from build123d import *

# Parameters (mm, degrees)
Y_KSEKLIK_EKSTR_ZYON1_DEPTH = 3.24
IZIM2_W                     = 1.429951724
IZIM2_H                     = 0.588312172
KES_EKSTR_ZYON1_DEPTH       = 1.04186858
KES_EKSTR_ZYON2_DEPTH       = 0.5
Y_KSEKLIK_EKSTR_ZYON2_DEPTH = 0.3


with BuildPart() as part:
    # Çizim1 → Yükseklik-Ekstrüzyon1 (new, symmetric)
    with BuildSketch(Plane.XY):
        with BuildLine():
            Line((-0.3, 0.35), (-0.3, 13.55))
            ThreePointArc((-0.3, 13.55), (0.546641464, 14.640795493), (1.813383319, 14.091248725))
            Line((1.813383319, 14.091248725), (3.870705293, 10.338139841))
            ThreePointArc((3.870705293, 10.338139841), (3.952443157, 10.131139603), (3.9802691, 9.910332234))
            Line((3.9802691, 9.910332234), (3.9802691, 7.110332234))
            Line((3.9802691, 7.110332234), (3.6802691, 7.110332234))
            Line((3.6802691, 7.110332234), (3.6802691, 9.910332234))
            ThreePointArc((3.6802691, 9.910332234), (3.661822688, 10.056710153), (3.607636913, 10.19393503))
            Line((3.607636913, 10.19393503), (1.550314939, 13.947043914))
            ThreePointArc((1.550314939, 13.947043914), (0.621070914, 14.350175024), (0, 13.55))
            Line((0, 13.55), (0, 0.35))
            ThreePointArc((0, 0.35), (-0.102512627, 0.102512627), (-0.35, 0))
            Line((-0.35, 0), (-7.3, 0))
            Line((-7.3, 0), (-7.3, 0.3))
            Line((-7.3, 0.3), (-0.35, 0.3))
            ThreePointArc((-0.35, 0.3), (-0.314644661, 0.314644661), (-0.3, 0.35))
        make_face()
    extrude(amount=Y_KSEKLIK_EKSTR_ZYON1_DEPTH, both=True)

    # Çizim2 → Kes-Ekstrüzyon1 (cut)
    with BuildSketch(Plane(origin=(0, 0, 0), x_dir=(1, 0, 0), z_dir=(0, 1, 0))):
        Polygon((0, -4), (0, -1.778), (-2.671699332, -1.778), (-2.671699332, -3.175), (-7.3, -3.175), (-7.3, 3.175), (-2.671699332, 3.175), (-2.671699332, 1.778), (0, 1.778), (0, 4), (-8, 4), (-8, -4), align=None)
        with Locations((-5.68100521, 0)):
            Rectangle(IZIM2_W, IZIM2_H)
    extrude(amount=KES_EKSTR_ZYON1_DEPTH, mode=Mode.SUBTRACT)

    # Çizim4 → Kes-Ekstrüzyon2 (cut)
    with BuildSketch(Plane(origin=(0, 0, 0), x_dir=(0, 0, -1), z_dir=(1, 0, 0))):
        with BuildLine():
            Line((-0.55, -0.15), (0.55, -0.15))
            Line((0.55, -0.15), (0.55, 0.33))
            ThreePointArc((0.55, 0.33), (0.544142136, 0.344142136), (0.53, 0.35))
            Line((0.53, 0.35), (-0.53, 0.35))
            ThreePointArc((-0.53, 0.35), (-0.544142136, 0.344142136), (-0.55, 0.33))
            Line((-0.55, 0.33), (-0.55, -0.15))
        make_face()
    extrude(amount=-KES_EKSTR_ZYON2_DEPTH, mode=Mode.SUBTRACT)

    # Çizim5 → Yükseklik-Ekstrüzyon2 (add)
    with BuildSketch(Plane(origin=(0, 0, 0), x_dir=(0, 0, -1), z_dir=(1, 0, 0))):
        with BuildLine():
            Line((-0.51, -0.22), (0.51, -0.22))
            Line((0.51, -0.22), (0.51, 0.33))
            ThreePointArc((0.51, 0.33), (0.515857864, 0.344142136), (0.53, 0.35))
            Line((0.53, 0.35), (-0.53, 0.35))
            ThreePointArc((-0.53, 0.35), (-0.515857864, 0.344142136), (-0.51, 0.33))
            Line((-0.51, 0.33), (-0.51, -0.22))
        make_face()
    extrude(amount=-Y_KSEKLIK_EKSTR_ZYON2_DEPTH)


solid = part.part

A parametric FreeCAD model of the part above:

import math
import FreeCAD as App
import Part
import Sketcher
Q = App.Units.Quantity

doc = App.newDocument("Part")
body = doc.addObject("PartDesign::Body", "Body")

# Sketch on XY plane
sketch1 = body.newObject("Sketcher::SketchObject", "Sketch")
sketch1.AttachmentSupport = (doc.getObject("XY_Plane"), [""])
sketch1.MapMode = "FlatFace"
sketch1.addGeometry(Part.LineSegment(App.Vector(-0.3, 13.55, 0), App.Vector(-0.3, 0.35, 0)), False)
sketch1.addGeometry(Part.ArcOfCircle(Part.Circle(App.Vector(-0.35, 0.35, 0), App.Vector(0, 0, 1), 0.05), math.radians(-90), math.radians(0)), False)
sketch1.addGeometry(Part.LineSegment(App.Vector(-0.35, 0.3, 0), App.Vector(-7.3, 0.3, 0)), False)
sketch1.addGeometry(Part.LineSegment(App.Vector(-7.3, 0.3, 0), App.Vector(-7.3, 0, 0)), False)
sketch1.addGeometry(Part.LineSegment(App.Vector(-7.3, 0, 0), App.Vector(-0.35, 0, 0)), False)
sketch1.addGeometry(Part.ArcOfCircle(Part.Circle(App.Vector(-0.35, 0.35, 0), App.Vector(0, 0, 1), 0.35), math.radians(-90), math.radians(0)), False)
sketch1.addGeometry(Part.LineSegment(App.Vector(0, 0.35, 0), App.Vector(0, 13.55, 0)), False)
sketch1.addGeometry(Part.ArcOfCircle(Part.Circle(App.Vector(0.83, 13.55, 0), App.Vector(0, 0, 1), 0.83), math.radians(29), math.radians(180)), False)
sketch1.addGeometry(Part.LineSegment(App.Vector(1.55, 13.95, 0), App.Vector(3.61, 10.19, 0)), False)
sketch1.addGeometry(Part.ArcOfCircle(Part.Circle(App.Vector(3.09, 9.91, 0), App.Vector(0, 0, 1), 0.59), math.radians(0), math.radians(29)), False)
sketch1.addGeometry(Part.LineSegment(App.Vector(3.68, 9.91, 0), App.Vector(3.68, 7.11, 0)), False)
sketch1.addGeometry(Part.LineSegment(App.Vector(3.68, 7.11, 0), App.Vector(3.98, 7.11, 0)), False)
sketch1.addGeometry(Part.LineSegment(App.Vector(3.98, 7.11, 0), App.Vector(3.98, 9.91, 0)), False)
sketch1.addGeometry(Part.ArcOfCircle(Part.Circle(App.Vector(3.09, 9.91, 0), App.Vector(0, 0, 1), 0.89), math.radians(0), math.radians(29)), False)
sketch1.addGeometry(Part.LineSegment(App.Vector(3.87, 10.34, 0), App.Vector(1.81, 14.09, 0)), False)
sketch1.addGeometry(Part.ArcOfCircle(Part.Circle(App.Vector(0.83, 13.55, 0), App.Vector(0, 0, 1), 1.13), math.radians(29), math.radians(180)), False)
sketch1.addConstraint(Sketcher.Constraint("Tangent", 0, 2, 1, 2))
sketch1.addConstraint(Sketcher.Constraint("Tangent", 1, 1, 2, 1))
sketch1.addConstraint(Sketcher.Constraint("Coincident", 2, 2, 3, 1))
sketch1.addConstraint(Sketcher.Constraint("Coincident", 3, 2, 4, 1))
sketch1.addConstraint(Sketcher.Constraint("Tangent", 4, 2, 5, 1))
sketch1.addConstraint(Sketcher.Constraint("Tangent", 5, 2, 6, 1))
sketch1.addConstraint(Sketcher.Constraint("Tangent", 6, 2, 7, 2))
sketch1.addConstraint(Sketcher.Constraint("Tangent", 7, 1, 8, 1))
sketch1.addConstraint(Sketcher.Constraint("Tangent", 8, 2, 9, 2))
sketch1.addConstraint(Sketcher.Constraint("Tangent", 9, 1, 10, 1))
sketch1.addConstraint(Sketcher.Constraint("Coincident", 10, 2, 11, 1))
sketch1.addConstraint(Sketcher.Constraint("Coincident", 11, 2, 12, 1))
sketch1.addConstraint(Sketcher.Constraint("Tangent", 12, 2, 13, 1))
sketch1.addConstraint(Sketcher.Constraint("Tangent", 13, 2, 14, 1))
sketch1.addConstraint(Sketcher.Constraint("Tangent", 14, 2, 15, 1))
sketch1.addConstraint(Sketcher.Constraint("Tangent", 15, 2, 0, 1))
sketch1.addConstraint(Sketcher.Constraint("Vertical", 0))
sketch1.addConstraint(Sketcher.Constraint("Horizontal", 2))
sketch1.addConstraint(Sketcher.Constraint("Vertical", 3))
sketch1.addConstraint(Sketcher.Constraint("Horizontal", 4))
sketch1.addConstraint(Sketcher.Constraint("Vertical", 6))
sketch1.addConstraint(Sketcher.Constraint("Vertical", 10))
sketch1.addConstraint(Sketcher.Constraint("Horizontal", 11))
sketch1.addConstraint(Sketcher.Constraint("Vertical", 12))
sketch1.addConstraint(Sketcher.Constraint("Coincident", 5, 3, 1, 3))
sketch1.addConstraint(Sketcher.Constraint("Coincident", 13, 3, 9, 3))
sketch1.addConstraint(Sketcher.Constraint("Coincident", 15, 3, 7, 3))
sketch1.addConstraint(Sketcher.Constraint("PointOnObject", 3, 2, -1))
sketch1.addConstraint(Sketcher.Constraint("PointOnObject", 5, 2, -2))
sketch1.addConstraint(Sketcher.Constraint("Parallel", 8, 14))
sketch1.addConstraint(Sketcher.Constraint("Radius", 1, Q("0.05 mm")))
sketch1.addConstraint(Sketcher.Constraint("Radius", 5, Q("0.35 mm")))
sketch1.addConstraint(Sketcher.Constraint("Radius", 9, Q("0.59 mm")))
sketch1.addConstraint(Sketcher.Constraint("DistanceY", 0, 2, 0, 1, Q("13.2 mm")))
sketch1.addConstraint(Sketcher.Constraint("DistanceY", 10, 2, 10, 1, Q("2.8 mm")))
sketch1.addConstraint(Sketcher.Constraint("Radius", 7, Q("0.826 mm")))
sketch1.addConstraint(Sketcher.Constraint("DistanceX", 2, 2, 0, 2, Q("7 mm")))
sketch1.addConstraint(Sketcher.Constraint("Angle", 8, Q("-61.27 deg")))
sketch1.addConstraint(Sketcher.Constraint("Distance", 8, Q("4.28 mm")))
pad1 = body.newObject("PartDesign::Pad", "Pad")
pad1.Profile = sketch1
pad1.Length = 6.48
pad1.Midplane = True

# Sketch on XZ plane
sketch2 = body.newObject("Sketcher::SketchObject", "Sketch001")
sketch2.AttachmentSupport = (doc.getObject("XZ_Plane"), [""])
sketch2.MapMode = "FlatFace"
sketch2.addGeometry(Part.LineSegment(App.Vector(0, 4, 0), App.Vector(0, 1.8, 0)), False)
sketch2.addGeometry(Part.LineSegment(App.Vector(0, 1.8, 0), App.Vector(-2.7, 1.8, 0)), False)
sketch2.addGeometry(Part.LineSegment(App.Vector(-2.7, 1.8, 0), App.Vector(-2.7, 3.2, 0)), False)
sketch2.addGeometry(Part.LineSegment(App.Vector(-2.7, 3.2, 0), App.Vector(-7.3, 3.2, 0)), False)
sketch2.addGeometry(Part.LineSegment(App.Vector(-7.3, 3.2, 0), App.Vector(-7.3, -3.2, 0)), False)
sketch2.addGeometry(Part.LineSegment(App.Vector(-7.3, -3.2, 0), App.Vector(-2.7, -3.2, 0)), False)
sketch2.addGeometry(Part.LineSegment(App.Vector(-2.7, -3.2, 0), App.Vector(-2.7, -1.8, 0)), False)
sketch2.addGeometry(Part.LineSegment(App.Vector(-2.7, -1.8, 0), App.Vector(0, -1.8, 0)), False)
sketch2.addGeometry(Part.LineSegment(App.Vector(0, -1.8, 0), App.Vector(0, -4, 0)), False)
sketch2.addGeometry(Part.LineSegment(App.Vector(0, -4, 0), App.Vector(-8, -4, 0)), False)
sketch2.addGeometry(Part.LineSegment(App.Vector(-8, -4, 0), App.Vector(-8, 4, 0)), False)
sketch2.addGeometry(Part.LineSegment(App.Vector(-8, 4, 0), App.Vector(0, 4, 0)), False)
sketch2.addGeometry(Part.LineSegment(App.Vector(-6.4, -0.3, 0), App.Vector(-6.4, 0.3, 0)), False)
sketch2.addGeometry(Part.LineSegment(App.Vector(-6.4, 0.3, 0), App.Vector(-5, 0.3, 0)), False)
sketch2.addGeometry(Part.LineSegment(App.Vector(-5, 0.3, 0), App.Vector(-5, -0.3, 0)), False)
sketch2.addGeometry(Part.LineSegment(App.Vector(-5, -0.3, 0), App.Vector(-6.4, -0.3, 0)), False)
sketch2.addConstraint(Sketcher.Constraint("Coincident", 0, 2, 1, 1))
sketch2.addConstraint(Sketcher.Constraint("Coincident", 1, 2, 2, 1))
sketch2.addConstraint(Sketcher.Constraint("Coincident", 2, 2, 3, 1))
sketch2.addConstraint(Sketcher.Constraint("Coincident", 3, 2, 4, 1))
sketch2.addConstraint(Sketcher.Constraint("Coincident", 4, 2, 5, 1))
sketch2.addConstraint(Sketcher.Constraint("Coincident", 5, 2, 6, 1))
sketch2.addConstraint(Sketcher.Constraint("Coincident", 6, 2, 7, 1))
sketch2.addConstraint(Sketcher.Constraint("Coincident", 7, 2, 8, 1))
sketch2.addConstraint(Sketcher.Constraint("Coincident", 8, 2, 9, 1))
sketch2.addConstraint(Sketcher.Constraint("Coincident", 9, 2, 10, 1))
sketch2.addConstraint(Sketcher.Constraint("Coincident", 10, 2, 11, 1))
sketch2.addConstraint(Sketcher.Constraint("Coincident", 11, 2, 0, 1))
sketch2.addConstraint(Sketcher.Constraint("Coincident", 12, 2, 13, 1))
sketch2.addConstraint(Sketcher.Constraint("Coincident", 13, 2, 14, 1))
sketch2.addConstraint(Sketcher.Constraint("Coincident", 14, 2, 15, 1))
sketch2.addConstraint(Sketcher.Constraint("Coincident", 15, 2, 12, 1))
sketch2.addConstraint(Sketcher.Constraint("Vertical", 0))
sketch2.addConstraint(Sketcher.Constraint("Horizontal", 1))
sketch2.addConstraint(Sketcher.Constraint("Vertical", 2))
sketch2.addConstraint(Sketcher.Constraint("Horizontal", 3))
sketch2.addConstraint(Sketcher.Constraint("Vertical", 4))
sketch2.addConstraint(Sketcher.Constraint("Horizontal", 5))
sketch2.addConstraint(Sketcher.Constraint("Vertical", 6))
sketch2.addConstraint(Sketcher.Constraint("Horizontal", 7))
sketch2.addConstraint(Sketcher.Constraint("Vertical", 8))
sketch2.addConstraint(Sketcher.Constraint("Horizontal", 9))
sketch2.addConstraint(Sketcher.Constraint("Vertical", 10))
sketch2.addConstraint(Sketcher.Constraint("Horizontal", 11))
sketch2.addConstraint(Sketcher.Constraint("Vertical", 12))
sketch2.addConstraint(Sketcher.Constraint("Horizontal", 13))
sketch2.addConstraint(Sketcher.Constraint("Vertical", 14))
sketch2.addConstraint(Sketcher.Constraint("Horizontal", 15))
sketch2.addConstraint(Sketcher.Constraint("Symmetric", 0, 2, 7, 2, -1, 1))
sketch2.addConstraint(Sketcher.Constraint("Symmetric", 2, 2, 5, 2, -1))
sketch2.addConstraint(Sketcher.Constraint("Symmetric", 8, 2, 11, 2, -1))
sketch2.addConstraint(Sketcher.Constraint("Equal", 11, 10))
sketch2.addConstraint(Sketcher.Constraint("DistanceX", 9, 2, 9, 1, Q("8 mm")))
sketch2.addConstraint(Sketcher.Constraint("DistanceY", 4, 2, 4, 1, Q("6.35 mm")))
sketch2.addConstraint(Sketcher.Constraint("DistanceX", 3, 2, -1, 1, Q("7.3 mm")))
sketch2.addConstraint(Sketcher.Constraint("DistanceY", 0, 2, 0, 1, Q("2.222 mm")))
sketch2.addConstraint(Sketcher.Constraint("DistanceX", 1, 2, 1, 1, Q("2.671699 mm")))
sketch2.addConstraint(Sketcher.Constraint("DistanceX", 13, 1, 13, 2, Q("1.429952 mm")))
sketch2.addConstraint(Sketcher.Constraint("DistanceY", 12, 1, 12, 2, Q("0.588312 mm")))
sketch2.addConstraint(Sketcher.Constraint("DistanceX", 12, 2, -1, 1, Q("6.395981 mm")))
sketch2.addConstraint(Sketcher.Constraint("DistanceY", -1, 1, 12, 2, Q("0.294156 mm")))
pocket1 = body.newObject("PartDesign::Pocket", "Pocket")
pocket1.Profile = sketch2
pocket1.Length = 1.041869

# Sketch on YZ plane
sketch3 = body.newObject("Sketcher::SketchObject", "Sketch002")
sketch3.AttachmentSupport = (doc.getObject("YZ_Plane"), [""])
sketch3.MapMode = "FlatFace"
sketch3.addGeometry(Part.LineSegment(App.Vector(-0.15, 0.55, 0), App.Vector(-0.15, -0.55, 0)), False)
sketch3.addGeometry(Part.LineSegment(App.Vector(-0.15, -0.55, 0), App.Vector(0.33, -0.55, 0)), False)
sketch3.addGeometry(Part.ArcOfCircle(Part.Circle(App.Vector(0.33, -0.53, 0), App.Vector(0, 0, 1), 0.02), math.radians(-90), math.radians(0)), False)
sketch3.addGeometry(Part.LineSegment(App.Vector(0.35, -0.53, 0), App.Vector(0.35, 0.53, 0)), False)
sketch3.addGeometry(Part.ArcOfCircle(Part.Circle(App.Vector(0.33, 0.53, 0), App.Vector(0, 0, 1), 0.02), math.radians(0), math.radians(90)), False)
sketch3.addGeometry(Part.LineSegment(App.Vector(0.33, 0.55, 0), App.Vector(-0.15, 0.55, 0)), False)
sketch3.addConstraint(Sketcher.Constraint("Coincident", 0, 2, 1, 1))
sketch3.addConstraint(Sketcher.Constraint("Tangent", 1, 2, 2, 1))
sketch3.addConstraint(Sketcher.Constraint("Tangent", 2, 2, 3, 1))
sketch3.addConstraint(Sketcher.Constraint("Tangent", 3, 2, 4, 1))
sketch3.addConstraint(Sketcher.Constraint("Tangent", 4, 2, 5, 1))
sketch3.addConstraint(Sketcher.Constraint("Coincident", 5, 2, 0, 1))
sketch3.addConstraint(Sketcher.Constraint("Vertical", 0))
sketch3.addConstraint(Sketcher.Constraint("Horizontal", 1))
sketch3.addConstraint(Sketcher.Constraint("Vertical", 3))
sketch3.addConstraint(Sketcher.Constraint("Horizontal", 5))
sketch3.addConstraint(Sketcher.Constraint("Equal", 2, 4))
sketch3.addConstraint(Sketcher.Constraint("Radius", 2, Q("0.02 mm")))
sketch3.addConstraint(Sketcher.Constraint("DistanceY", 0, 2, 0, 1, Q("1.1 mm")))
sketch3.addConstraint(Sketcher.Constraint("DistanceX", 1, 1, 1, 2, Q("0.48 mm")))
sketch3.addConstraint(Sketcher.Constraint("DistanceX", -1, 1, 2, 3, Q("0.33 mm")))
sketch3.addConstraint(Sketcher.Constraint("DistanceY", 2, 3, -1, 1, Q("0.53 mm")))
pocket2 = body.newObject("PartDesign::Pocket", "Pocket001")
pocket2.Profile = sketch3
pocket2.Length = 0.5

# Sketch on YZ plane
sketch4 = body.newObject("Sketcher::SketchObject", "Sketch003")
sketch4.AttachmentSupport = (doc.getObject("YZ_Plane"), [""])
sketch4.MapMode = "FlatFace"
sketch4.addGeometry(Part.LineSegment(App.Vector(-0.22, 0.51, 0), App.Vector(-0.22, -0.51, 0)), False)
sketch4.addGeometry(Part.LineSegment(App.Vector(-0.22, -0.51, 0), App.Vector(0.33, -0.51, 0)), False)
sketch4.addGeometry(Part.ArcOfCircle(Part.Circle(App.Vector(0.33, -0.53, 0), App.Vector(0, 0, 1), 0.02), math.radians(0), math.radians(90)), False)
sketch4.addGeometry(Part.LineSegment(App.Vector(0.35, -0.53, 0), App.Vector(0.35, 0.53, 0)), False)
sketch4.addGeometry(Part.ArcOfCircle(Part.Circle(App.Vector(0.33, 0.53, 0), App.Vector(0, 0, 1), 0.02), math.radians(-90), math.radians(0)), False)
sketch4.addGeometry(Part.LineSegment(App.Vector(0.33, 0.51, 0), App.Vector(-0.22, 0.51, 0)), False)
sketch4.addConstraint(Sketcher.Constraint("Coincident", 0, 2, 1, 1))
sketch4.addConstraint(Sketcher.Constraint("Tangent", 1, 2, 2, 2))
sketch4.addConstraint(Sketcher.Constraint("Tangent", 2, 1, 3, 1))
sketch4.addConstraint(Sketcher.Constraint("Tangent", 3, 2, 4, 2))
sketch4.addConstraint(Sketcher.Constraint("Tangent", 4, 1, 5, 1))
sketch4.addConstraint(Sketcher.Constraint("Coincident", 5, 2, 0, 1))
sketch4.addConstraint(Sketcher.Constraint("Vertical", 0))
sketch4.addConstraint(Sketcher.Constraint("Horizontal", 1))
sketch4.addConstraint(Sketcher.Constraint("Vertical", 3))
sketch4.addConstraint(Sketcher.Constraint("Horizontal", 5))
sketch4.addConstraint(Sketcher.Constraint("Equal", 2, 4))
sketch4.addConstraint(Sketcher.Constraint("Radius", 2, Q("0.02 mm")))
sketch4.addConstraint(Sketcher.Constraint("DistanceX", 1, 1, 1, 2, Q("0.55 mm")))
sketch4.addConstraint(Sketcher.Constraint("DistanceY", 0, 2, 0, 1, Q("1.02 mm")))
sketch4.addConstraint(Sketcher.Constraint("DistanceX", -1, 1, 2, 3, Q("0.33 mm")))
sketch4.addConstraint(Sketcher.Constraint("DistanceY", 2, 3, -1, 1, Q("0.53 mm")))
pad2 = body.newObject("PartDesign::Pad", "Pad001")
pad2.Profile = sketch4
pad2.Length = 0.3
pad2.Reversed = True

doc.recompute()
